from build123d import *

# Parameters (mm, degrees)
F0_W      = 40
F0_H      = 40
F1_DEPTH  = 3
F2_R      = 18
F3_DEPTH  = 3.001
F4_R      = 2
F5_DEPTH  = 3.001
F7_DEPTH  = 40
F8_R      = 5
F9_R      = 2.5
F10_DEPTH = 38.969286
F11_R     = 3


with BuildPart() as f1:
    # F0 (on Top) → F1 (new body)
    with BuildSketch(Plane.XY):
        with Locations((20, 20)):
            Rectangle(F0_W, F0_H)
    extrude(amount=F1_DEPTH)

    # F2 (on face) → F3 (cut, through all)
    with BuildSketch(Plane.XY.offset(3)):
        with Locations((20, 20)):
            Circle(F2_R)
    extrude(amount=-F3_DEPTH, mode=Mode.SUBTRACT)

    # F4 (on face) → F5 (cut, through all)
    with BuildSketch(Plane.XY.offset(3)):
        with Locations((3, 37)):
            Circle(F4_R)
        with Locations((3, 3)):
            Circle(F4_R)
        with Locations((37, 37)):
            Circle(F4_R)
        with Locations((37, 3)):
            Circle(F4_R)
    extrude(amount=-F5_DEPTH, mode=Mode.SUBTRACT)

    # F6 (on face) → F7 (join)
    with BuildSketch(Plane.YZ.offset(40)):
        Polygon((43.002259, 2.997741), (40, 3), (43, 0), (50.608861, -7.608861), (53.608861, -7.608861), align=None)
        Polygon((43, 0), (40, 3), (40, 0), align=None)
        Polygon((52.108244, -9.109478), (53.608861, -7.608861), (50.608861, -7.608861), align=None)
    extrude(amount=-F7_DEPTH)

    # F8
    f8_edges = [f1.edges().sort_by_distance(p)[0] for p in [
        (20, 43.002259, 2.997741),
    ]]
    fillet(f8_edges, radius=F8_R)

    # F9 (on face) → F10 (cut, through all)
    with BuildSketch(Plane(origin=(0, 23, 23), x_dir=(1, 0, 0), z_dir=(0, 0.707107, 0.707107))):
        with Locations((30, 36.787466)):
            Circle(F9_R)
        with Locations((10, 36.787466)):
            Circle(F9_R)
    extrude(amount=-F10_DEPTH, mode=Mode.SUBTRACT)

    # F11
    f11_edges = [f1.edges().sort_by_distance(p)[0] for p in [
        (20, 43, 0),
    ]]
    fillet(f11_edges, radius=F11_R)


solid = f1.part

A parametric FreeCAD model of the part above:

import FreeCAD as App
import Part
import Sketcher
from FreeCAD import Vector
Q = App.Units.Quantity


def edges_at(feature, points):
    """Names of the edges that pass closest to the given points."""
    edges = feature.Shape.Edges
    near = lambda p: min(range(len(edges)), key=lambda i: edges[i].distToShape(Part.Vertex(*p))[0])
    return sorted({f"Edge{near(p) + 1}" for p in points})


def add_polygon(sketch, points):
    """Adds a closed chain of lines whose ends are joined by coincident constraints."""
    first, n = sketch.GeometryCount, len(points)
    for a, b in zip(points, points[1:] + points[:1]):
        sketch.addGeometry(Part.LineSegment(App.Vector(*a, 0), App.Vector(*b, 0)), False)
    for i in range(n):
        sketch.addConstraint(Sketcher.Constraint("Coincident", first + i, 2, first + (i + 1) % n, 1))

doc = App.newDocument("Part")
body = doc.addObject("PartDesign::Body", "Body")

# Sketch on XY plane
sketch1 = doc.addObject("Sketcher::SketchObject", "Sketch")
body.addObject(sketch1)
sketch1.AttachmentSupport = (doc.XY_Plane, [""])
sketch1.MapMode = "FlatFace"
add_polygon(sketch1, [(0, 40), (0, 0), (40, 0), (40, 40)])  # lines 0-3
sketch1.addConstraint(Sketcher.Constraint("Vertical", 0))
sketch1.addConstraint(Sketcher.Constraint("Horizontal", 1))
sketch1.addConstraint(Sketcher.Constraint("Vertical", 2))
sketch1.addConstraint(Sketcher.Constraint("Horizontal", 3))
sketch1.addConstraint(Sketcher.Constraint("Coincident", 0, 2, -1, 1))
sketch1.addConstraint(Sketcher.Constraint("Equal", 3, 0))
sketch1.addConstraint(Sketcher.Constraint("DistanceX", 1, 1, 1, 2, 40.0))
pad1 = doc.addObject("PartDesign::Pad", "Pad")
body.addObject(pad1)
pad1.Profile = sketch1
pad1.Length = 3

# Sketch on XY plane
sketch2 = doc.addObject("Sketcher::SketchObject", "Sketch001")
body.addObject(sketch2)
sketch2.AttachmentSupport = (doc.XY_Plane, [""])
sketch2.MapMode = "FlatFace"
sketch2.AttachmentOffset = App.Placement(Vector(0, 0, 3), App.Rotation())
sketch2.addGeometry(Part.Circle(Vector(20, 20, 0), Vector(0, 0, 1), 18), False)
sketch2.addConstraint(Sketcher.Constraint("Diameter", 0, 36.0))
sketch2.addConstraint(Sketcher.Constraint("DistanceX", -1, 1, 0, 3, 20.0))
sketch2.addConstraint(Sketcher.Constraint("DistanceY", -1, 1, 0, 3, 20.0))
pocket1 = doc.addObject("PartDesign::Pocket", "Pocket")
body.addObject(pocket1)
pocket1.Profile = sketch2
pocket1.Type = "ThroughAll"

# Sketch on XY plane
sketch3 = doc.addObject("Sketcher::SketchObject", "Sketch002")
body.addObject(sketch3)
sketch3.AttachmentSupport = (doc.XY_Plane, [""])
sketch3.MapMode = "FlatFace"
sketch3.AttachmentOffset = App.Placement(Vector(0, 0, 3), App.Rotation())
sketch3.addGeometry(Part.Circle(Vector(3, 37, 0), Vector(0, 0, 1), 2), False)
sketch3.addGeometry(Part.Circle(Vector(3, 3, 0), Vector(0, 0, 1), 2), False)
sketch3.addGeometry(Part.Circle(Vector(37, 37, 0), Vector(0, 0, 1), 2), False)
sketch3.addGeometry(Part.Circle(Vector(37, 3, 0), Vector(0, 0, 1), 2), False)
sketch3.addConstraint(Sketcher.Constraint("Equal", 0, 1))
sketch3.addConstraint(Sketcher.Constraint("Equal", 1, 2))
sketch3.addConstraint(Sketcher.Constraint("Equal", 2, 3))
sketch3.addConstraint(Sketcher.Constraint("Horizontal", 0, 3, 2, 3))
sketch3.addConstraint(Sketcher.Constraint("Horizontal", 1, 3, 3, 3))
sketch3.addConstraint(Sketcher.Constraint("Vertical", 0, 3, 1, 3))
sketch3.addConstraint(Sketcher.Constraint("Vertical", 2, 3, 3, 3))
sketch3.addConstraint(Sketcher.Constraint("Diameter", 0, 4.0))
sketch3.addConstraint(Sketcher.Constraint("DistanceX", -1, 1, 0, 3, 3.0))
sketch3.addConstraint(Sketcher.Constraint("DistanceY", -1, 1, 0, 3, 37.0))
sketch3.addConstraint(Sketcher.Constraint("DistanceY", -1, 1, 1, 3, 3.0))
sketch3.addConstraint(Sketcher.Constraint("DistanceX", -1, 1, 2, 3, 37.0))
pocket2 = doc.addObject("PartDesign::Pocket", "Pocket001")
body.addObject(pocket2)
pocket2.Profile = sketch3
pocket2.Type = "ThroughAll"

# Sketch on YZ plane
sketch4 = doc.addObject("Sketcher::SketchObject", "Sketch003")
body.addObject(sketch4)
sketch4.AttachmentSupport = (doc.YZ_Plane, [""])
sketch4.MapMode = "FlatFace"
sketch4.AttachmentOffset = App.Placement(Vector(0, 0, 40), App.Rotation())
add_polygon(sketch4, [(43, 3), (40, 3), (40, 0), (43, 0), (50.6, -7.6), (52.1, -9.1), (53.6, -7.6)])  # lines 0-6
sketch4.addConstraint(Sketcher.Constraint("Vertical", 1))
sketch4.addConstraint(Sketcher.Constraint("Horizontal", 2))
sketch4.addConstraint(Sketcher.Constraint("PointOnObject", 1, 2, -1))
sketch4.addConstraint(Sketcher.Constraint("Perpendicular", 3, 5))
sketch4.addConstraint(Sketcher.Constraint("Perpendicular", 5, 6))
sketch4.addConstraint(Sketcher.Constraint("Horizontal", 3, 2, 5, 2))
sketch4.addConstraint(Sketcher.Constraint("Equal", 2, 1))
sketch4.addConstraint(Sketcher.Constraint("DistanceX", 2, 1, 2, 2, 3.0))
sketch4.addConstraint(Sketcher.Constraint("Angle", 3, Q("-45 deg")))
sketch4.addConstraint(Sketcher.Constraint("Distance", 6, 15.0))
sketch4.addConstraint(Sketcher.Constraint("DistanceX", -1, 1, 0, 2, 40.0))
sketch4.addConstraint(Sketcher.Constraint("DistanceX", 3, 2, 5, 2, 3.0))
sketch4.addConstraint(Sketcher.Constraint("Distance", 0, 3.00226))
sketch4.addConstraint(Sketcher.Constraint("Distance", 5, 2.122193))
pad2 = doc.addObject("PartDesign::Pad", "Pad001")
body.addObject(pad2)
pad2.Profile = sketch4
pad2.Length = 40
pad2.Reversed = True
doc.recompute()

fillet = doc.addObject("PartDesign::Fillet", "Fillet")
body.addObject(fillet)
fillet.Base = (pad2, edges_at(pad2, [(20, 43.002, 2.998)]))
fillet.Radius = 5

# Sketch on an angled plane
sketch5 = doc.addObject("Sketcher::SketchObject", "Sketch004")
body.addObject(sketch5)
sketch5.Placement = App.Placement(Vector(0, 23, 23), App.Rotation(Vector(1, 0, 0), Vector(0, 0.707106781, -0.707106781), Vector(0, 0.707106781, 0.707106781), "ZXY"))
sketch5.addGeometry(Part.Circle(Vector(30, 36.8, 0), Vector(0, 0, 1), 2.5), False)
sketch5.addGeometry(Part.Circle(Vector(10, 36.8, 0), Vector(0, 0, 1), 2.5), False)
sketch5.addConstraint(Sketcher.Constraint("Equal", 0, 1))
sketch5.addConstraint(Sketcher.Constraint("Horizontal", 0, 3, 1, 3))
sketch5.addConstraint(Sketcher.Constraint("Diameter", 0, 5.0))
sketch5.addConstraint(Sketcher.Constraint("DistanceX", -1, 1, 0, 3, 30.0))
sketch5.addConstraint(Sketcher.Constraint("DistanceX", -1, 1, 1, 3, 10.0))
sketch5.addConstraint(Sketcher.Constraint("DistanceY", -1, 1, 0, 3, 36.787466))
pocket3 = doc.addObject("PartDesign::Pocket", "Pocket002")
body.addObject(pocket3)
pocket3.Profile = sketch5
pocket3.Type = "ThroughAll"
doc.recompute()

fillet2 = doc.addObject("PartDesign::Fillet", "Fillet001")
body.addObject(fillet2)
fillet2.Base = (pocket3, edges_at(pocket3, [(20, 43, 0)]))
fillet2.Radius = 3

doc.recompute()
